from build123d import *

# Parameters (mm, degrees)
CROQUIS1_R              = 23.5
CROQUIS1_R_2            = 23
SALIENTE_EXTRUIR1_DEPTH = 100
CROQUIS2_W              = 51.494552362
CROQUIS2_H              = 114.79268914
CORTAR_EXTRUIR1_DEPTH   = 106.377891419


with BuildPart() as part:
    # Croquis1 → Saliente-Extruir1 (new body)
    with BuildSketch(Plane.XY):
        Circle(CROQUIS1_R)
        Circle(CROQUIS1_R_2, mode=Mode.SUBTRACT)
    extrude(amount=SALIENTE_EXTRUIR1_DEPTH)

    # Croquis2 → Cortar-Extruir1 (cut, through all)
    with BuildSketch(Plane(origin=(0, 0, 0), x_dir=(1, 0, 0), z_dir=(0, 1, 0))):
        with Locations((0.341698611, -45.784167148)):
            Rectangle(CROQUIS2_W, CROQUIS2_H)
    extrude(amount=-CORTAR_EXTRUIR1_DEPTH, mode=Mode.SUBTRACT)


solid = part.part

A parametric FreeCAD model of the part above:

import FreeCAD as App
import Part
import Sketcher

V = App.Vector


def add_polygon(sketch, points):
    """Adds a closed chain of lines whose ends are joined by coincident constraints."""
    first, n = sketch.GeometryCount, len(points)
    for a, b in zip(points, points[1:] + points[:1]):
        sketch.addGeometry(Part.LineSegment(App.Vector(*a, 0), App.Vector(*b, 0)), False)
    for i in range(n):
        sketch.addConstraint(Sketcher.Constraint("Coincident", first + i, 2, first + (i + 1) % n, 1))

doc = App.newDocument("Part")
body = doc.addObject("PartDesign::Body", "Body")

# Sketch on XY plane
sketch1 = body.newObject("Sketcher::SketchObject", "Sketch")
sketch1.AttachmentSupport = (doc.getObject("XY_Plane"), [""])
sketch1.MapMode = "FlatFace"
sketch1.addGeometry([
    Part.Circle(V(0, 0, 0), V(0, 0, 1), 24),
    Part.Circle(V(0, 0, 0), V(0, 0, 1), 23),
], False)
sketch1.addConstraint([
    Sketcher.Constraint("Coincident", 0, 3, -1, 1),
    Sketcher.Constraint("Coincident", 1, 3, -1, 1),
    Sketcher.Constraint("Diameter", 0, 47.0),
    Sketcher.Constraint("Diameter", 1, 46.0),
])
pad1 = body.newObject("PartDesign::Pad", "Pad")
pad1.Profile = sketch1
pad1.Length = 100

# Sketch on XZ plane
sketch2 = body.newObject("Sketcher::SketchObject", "Sketch001")
sketch2.AttachmentSupport = (doc.getObject("XZ_Plane"), [""])
sketch2.MapMode = "FlatFace"
add_polygon(sketch2, [(-25, -12), (-25, 103), (26, 103), (26, -12)])  # lines 0-3
sketch2.addConstraint([
    Sketcher.Constraint("Vertical", 0),
    Sketcher.Constraint("Horizontal", 1),
    Sketcher.Constraint("Vertical", 2),
    Sketcher.Constraint("Horizontal", 3),
    Sketcher.Constraint("DistanceY", 0, 1, 0, 2, 114.792689),
    Sketcher.Constraint("DistanceX", 1, 1, 1, 2, 51.494552),
    Sketcher.Constraint("DistanceY", -1, 1, 0, 2, 103.180512),
    Sketcher.Constraint("DistanceX", 0, 2, -1, 1, 25.405578),
])
pocket1 = body.newObject("PartDesign::Pocket", "Pocket")
pocket1.Profile = sketch2
pocket1.Type = "ThroughAll"
pocket1.Reversed = True

doc.recompute()
